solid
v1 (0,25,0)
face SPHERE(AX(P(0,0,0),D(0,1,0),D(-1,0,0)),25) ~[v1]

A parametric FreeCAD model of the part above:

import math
import FreeCAD as App
import Part
import Sketcher

V = App.Vector
Q = App.Units.Quantity

doc = App.newDocument("Part")
body = doc.addObject("PartDesign::Body", "Body")

# Sketch on XY plane
sketch1 = body.newObject("Sketcher::SketchObject", "Sketch")
sketch1.AttachmentSupport = (doc.getObject("XY_Plane"), [""])
sketch1.MapMode = "FlatFace"
sketch1.addGeometry([
    Part.LineSegment(V(0, -25, 0), V(0, 25, 0)),
    Part.ArcOfCircle(Part.Circle(V(0, 0, 0), V(0, 0, 1), 25), math.radians(90), math.radians(270)),
], False)
sketch1.addConstraint([
    Sketcher.Constraint("Coincident", 0, 1, 1, 2),
    Sketcher.Constraint("Coincident", 1, 1, 0, 2),
    Sketcher.Constraint("Vertical", 0),
    Sketcher.Constraint("Coincident", 1, 3, -1, 1),
    Sketcher.Constraint("PointOnObject", 0, 1, -2),
    Sketcher.Constraint("Radius", 1, Q("25 mm")),
])
revolution = body.newObject("PartDesign::Revolution", "Revolution")
revolution.Profile = sketch1
revolution.ReferenceAxis = (sketch1, ["V_Axis"])
revolution.Angle = 360

doc.recompute()
